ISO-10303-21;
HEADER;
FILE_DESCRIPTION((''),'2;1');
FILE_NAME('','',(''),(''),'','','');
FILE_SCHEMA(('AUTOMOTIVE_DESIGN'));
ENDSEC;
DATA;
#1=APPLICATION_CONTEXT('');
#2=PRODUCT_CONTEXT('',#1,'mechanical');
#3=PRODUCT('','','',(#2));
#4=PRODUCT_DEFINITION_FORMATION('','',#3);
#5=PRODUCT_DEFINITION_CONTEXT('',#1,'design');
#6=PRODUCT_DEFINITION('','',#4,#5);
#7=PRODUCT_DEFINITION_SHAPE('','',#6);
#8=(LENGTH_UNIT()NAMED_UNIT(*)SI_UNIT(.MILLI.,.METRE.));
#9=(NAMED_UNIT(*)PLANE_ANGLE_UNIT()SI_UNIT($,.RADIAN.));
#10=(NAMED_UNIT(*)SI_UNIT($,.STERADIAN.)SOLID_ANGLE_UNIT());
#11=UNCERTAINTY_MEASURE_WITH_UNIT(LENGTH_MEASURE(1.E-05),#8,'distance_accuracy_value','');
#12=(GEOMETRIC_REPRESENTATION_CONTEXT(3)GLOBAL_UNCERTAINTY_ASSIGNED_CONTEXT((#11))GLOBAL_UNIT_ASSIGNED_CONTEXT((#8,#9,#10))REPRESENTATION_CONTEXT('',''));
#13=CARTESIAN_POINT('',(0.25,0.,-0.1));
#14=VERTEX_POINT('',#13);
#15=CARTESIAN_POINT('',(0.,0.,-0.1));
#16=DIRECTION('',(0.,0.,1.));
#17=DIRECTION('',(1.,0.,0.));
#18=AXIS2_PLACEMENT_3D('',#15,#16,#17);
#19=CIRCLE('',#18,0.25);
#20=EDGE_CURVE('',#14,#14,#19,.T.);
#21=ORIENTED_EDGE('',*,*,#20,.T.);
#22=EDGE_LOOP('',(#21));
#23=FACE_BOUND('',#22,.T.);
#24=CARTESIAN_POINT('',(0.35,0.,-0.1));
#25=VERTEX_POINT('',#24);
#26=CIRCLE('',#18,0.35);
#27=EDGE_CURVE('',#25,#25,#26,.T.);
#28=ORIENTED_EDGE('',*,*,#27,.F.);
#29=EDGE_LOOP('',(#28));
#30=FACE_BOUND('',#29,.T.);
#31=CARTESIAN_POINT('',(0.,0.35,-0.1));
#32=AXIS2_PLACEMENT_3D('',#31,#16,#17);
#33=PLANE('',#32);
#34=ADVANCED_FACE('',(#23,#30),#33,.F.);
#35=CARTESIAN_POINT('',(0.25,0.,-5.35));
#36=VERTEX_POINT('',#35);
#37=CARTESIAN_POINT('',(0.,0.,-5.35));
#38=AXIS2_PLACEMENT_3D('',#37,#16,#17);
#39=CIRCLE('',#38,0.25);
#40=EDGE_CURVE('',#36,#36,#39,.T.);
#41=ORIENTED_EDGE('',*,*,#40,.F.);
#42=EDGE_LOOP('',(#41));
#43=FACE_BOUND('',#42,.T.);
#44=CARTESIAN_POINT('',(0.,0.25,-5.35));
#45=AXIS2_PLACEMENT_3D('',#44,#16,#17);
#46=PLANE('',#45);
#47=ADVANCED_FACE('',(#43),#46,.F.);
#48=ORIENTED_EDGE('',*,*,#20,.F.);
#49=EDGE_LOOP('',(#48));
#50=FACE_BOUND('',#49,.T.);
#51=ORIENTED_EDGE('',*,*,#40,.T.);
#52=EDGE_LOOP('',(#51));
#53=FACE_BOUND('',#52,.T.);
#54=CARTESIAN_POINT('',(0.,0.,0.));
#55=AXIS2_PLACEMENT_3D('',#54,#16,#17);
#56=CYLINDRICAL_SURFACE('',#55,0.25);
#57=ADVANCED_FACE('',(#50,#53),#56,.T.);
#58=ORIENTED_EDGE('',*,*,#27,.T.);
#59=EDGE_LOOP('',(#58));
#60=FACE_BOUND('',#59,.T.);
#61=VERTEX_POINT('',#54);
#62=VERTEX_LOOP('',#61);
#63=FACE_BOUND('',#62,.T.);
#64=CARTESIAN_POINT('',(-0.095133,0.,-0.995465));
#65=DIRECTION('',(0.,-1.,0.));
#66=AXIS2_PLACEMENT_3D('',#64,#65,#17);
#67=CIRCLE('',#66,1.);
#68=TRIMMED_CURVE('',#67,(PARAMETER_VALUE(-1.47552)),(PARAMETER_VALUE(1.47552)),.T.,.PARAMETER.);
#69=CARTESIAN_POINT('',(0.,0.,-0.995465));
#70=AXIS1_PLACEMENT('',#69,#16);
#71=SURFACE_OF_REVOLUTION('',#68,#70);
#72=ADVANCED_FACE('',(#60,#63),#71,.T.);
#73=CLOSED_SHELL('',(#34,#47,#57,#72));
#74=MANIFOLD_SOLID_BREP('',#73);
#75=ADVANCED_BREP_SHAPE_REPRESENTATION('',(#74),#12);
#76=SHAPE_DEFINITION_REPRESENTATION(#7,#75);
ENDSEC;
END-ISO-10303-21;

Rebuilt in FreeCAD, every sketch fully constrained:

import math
import FreeCAD as App
import Part
import Sketcher

doc = App.newDocument("Part")
body = doc.addObject("PartDesign::Body", "Body")

sketch1 = body.newObject("Sketcher::SketchObject", "Sketch")
sketch1.AttachmentSupport = (doc.getObject("YZ_Plane"), [""])
sketch1.MapMode = "FlatFace"
sketch1.addGeometry(Part.LineSegment(App.Vector(0.25, -0.1, 0), App.Vector(0.35, -0.1, 0)), False)
sketch1.addGeometry(Part.ArcOfCircle(Part.Circle(App.Vector(-0.095133, -0.995465, 0), App.Vector(0, 0, 1), 1), math.radians(63.568168), math.radians(84.54104)), False)
sketch1.addGeometry(Part.LineSegment(App.Vector(0, 0, 0), App.Vector(0, -5.35, 0)), False)
sketch1.addGeometry(Part.LineSegment(App.Vector(0, -5.35, 0), App.Vector(0.25, -5.35, 0)), False)
sketch1.addGeometry(Part.LineSegment(App.Vector(0.25, -5.35, 0), App.Vector(0.25, -0.1, 0)), False)
sketch1.addConstraint(Sketcher.Constraint("Coincident", 0, 2, 1, 1))
sketch1.addConstraint(Sketcher.Constraint("Coincident", 1, 2, 2, 1))
sketch1.addConstraint(Sketcher.Constraint("Coincident", 2, 2, 3, 1))
sketch1.addConstraint(Sketcher.Constraint("Coincident", 3, 2, 4, 1))
sketch1.addConstraint(Sketcher.Constraint("Coincident", 4, 2, 0, 1))
sketch1.addConstraint(Sketcher.Constraint("Horizontal", 0))
sketch1.addConstraint(Sketcher.Constraint("Vertical", 2))
sketch1.addConstraint(Sketcher.Constraint("Horizontal", 3))
sketch1.addConstraint(Sketcher.Constraint("Vertical", 4))
sketch1.addConstraint(Sketcher.Constraint("Coincident", 1, 2, -1, 1))
sketch1.addConstraint(Sketcher.Constraint("Radius", 1, 1.0))
sketch1.addConstraint(Sketcher.Constraint("DistanceX", 0, 1, 0, 2, 0.1))
sketch1.addConstraint(Sketcher.Constraint("DistanceX", 3, 1, 3, 2, 0.25))
sketch1.addConstraint(Sketcher.Constraint("DistanceY", 2, 2, 2, 1, 5.35))
sketch1.addConstraint(Sketcher.Constraint("DistanceY", 4, 1, 4, 2, 5.25))
revolution = body.newObject("PartDesign::Revolution", "Revolution")
revolution.Profile = sketch1
revolution.ReferenceAxis = (sketch1, ["V_Axis"])
revolution.Angle = 360

doc.recompute()
